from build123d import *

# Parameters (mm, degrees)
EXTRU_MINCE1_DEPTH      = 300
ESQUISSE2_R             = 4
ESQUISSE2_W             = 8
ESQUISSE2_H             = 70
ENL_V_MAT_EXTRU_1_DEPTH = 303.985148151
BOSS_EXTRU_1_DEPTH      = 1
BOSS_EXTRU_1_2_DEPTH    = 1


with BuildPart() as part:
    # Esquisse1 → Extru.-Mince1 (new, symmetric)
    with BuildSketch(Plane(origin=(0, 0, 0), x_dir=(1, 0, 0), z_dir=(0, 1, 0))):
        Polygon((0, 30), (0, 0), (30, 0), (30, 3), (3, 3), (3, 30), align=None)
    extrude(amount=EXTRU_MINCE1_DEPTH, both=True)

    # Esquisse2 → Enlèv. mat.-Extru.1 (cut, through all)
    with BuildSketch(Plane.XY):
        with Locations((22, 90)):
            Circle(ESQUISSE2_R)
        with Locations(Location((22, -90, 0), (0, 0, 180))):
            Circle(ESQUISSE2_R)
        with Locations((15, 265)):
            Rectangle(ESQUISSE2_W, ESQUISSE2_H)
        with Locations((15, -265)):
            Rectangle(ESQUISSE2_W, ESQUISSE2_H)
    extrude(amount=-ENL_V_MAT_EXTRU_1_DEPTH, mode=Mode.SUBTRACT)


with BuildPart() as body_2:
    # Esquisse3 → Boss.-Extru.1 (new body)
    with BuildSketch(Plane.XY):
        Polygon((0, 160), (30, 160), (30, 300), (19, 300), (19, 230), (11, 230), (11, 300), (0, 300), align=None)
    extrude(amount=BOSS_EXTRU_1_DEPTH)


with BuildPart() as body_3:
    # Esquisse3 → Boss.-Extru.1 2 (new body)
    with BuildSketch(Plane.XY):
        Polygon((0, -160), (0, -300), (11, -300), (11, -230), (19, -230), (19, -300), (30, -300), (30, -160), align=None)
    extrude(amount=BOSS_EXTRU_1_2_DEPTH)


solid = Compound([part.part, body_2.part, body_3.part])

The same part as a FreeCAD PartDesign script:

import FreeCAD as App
import Part
import Sketcher


def add_polygon(sketch, points):
    """Adds a closed chain of lines whose ends are joined by coincident constraints."""
    first, n = sketch.GeometryCount, len(points)
    for a, b in zip(points, points[1:] + points[:1]):
        sketch.addGeometry(Part.LineSegment(App.Vector(*a, 0), App.Vector(*b, 0)), False)
    for i in range(n):
        sketch.addConstraint(Sketcher.Constraint("Coincident", first + i, 2, first + (i + 1) % n, 1))

doc = App.newDocument("Part")
body = doc.addObject("PartDesign::Body", "Body")

# Sketch on XZ plane
sketch1 = doc.addObject("Sketcher::SketchObject", "Sketch")
body.addObject(sketch1)
sketch1.AttachmentSupport = (doc.XZ_Plane, [""])
sketch1.MapMode = "FlatFace"
add_polygon(sketch1, [(0, -30), (0, 0), (30, 0), (30, -3), (3, -3), (3, -30)])  # lines 0-5
sketch1.addConstraint(Sketcher.Constraint("Vertical", 0))
sketch1.addConstraint(Sketcher.Constraint("Horizontal", 1))
sketch1.addConstraint(Sketcher.Constraint("Vertical", 2))
sketch1.addConstraint(Sketcher.Constraint("Horizontal", 3))
sketch1.addConstraint(Sketcher.Constraint("Vertical", 4))
sketch1.addConstraint(Sketcher.Constraint("Horizontal", 5))
sketch1.addConstraint(Sketcher.Constraint("Coincident", 0, 2, -1, 1))
sketch1.addConstraint(Sketcher.Constraint("Equal", 1, 0))
sketch1.addConstraint(Sketcher.Constraint("Equal", 5, 2))
sketch1.addConstraint(Sketcher.Constraint("DistanceX", 1, 1, 1, 2, 30.0))
sketch1.addConstraint(Sketcher.Constraint("DistanceX", 3, 2, 3, 1, 27.0))
pad1 = doc.addObject("PartDesign::Pad", "Pad")
body.addObject(pad1)
pad1.Profile = sketch1
pad1.Length = 600
pad1.Midplane = True

# Sketch on XY plane
sketch2 = doc.addObject("Sketcher::SketchObject", "Sketch001")
body.addObject(sketch2)
sketch2.AttachmentSupport = (doc.XY_Plane, [""])
sketch2.MapMode = "FlatFace"
sketch2.addGeometry(Part.Circle(App.Vector(22, 90, 0), App.Vector(0, 0, 1), 4), False)  # 0
sketch2.addGeometry(Part.Circle(App.Vector(22, -90, 0), App.Vector(0, 0, 1), 4), False)  # 1
add_polygon(sketch2, [(11, 300), (11, 230), (19, 230), (19, 300)])  # lines 2-5
add_polygon(sketch2, [(11, -230), (11, -300), (19, -300), (19, -230)])  # lines 6-9
sketch2.addConstraint(Sketcher.Constraint("Vertical", 2))
sketch2.addConstraint(Sketcher.Constraint("Horizontal", 3))
sketch2.addConstraint(Sketcher.Constraint("Vertical", 4))
sketch2.addConstraint(Sketcher.Constraint("Horizontal", 5))
sketch2.addConstraint(Sketcher.Constraint("Vertical", 6))
sketch2.addConstraint(Sketcher.Constraint("Horizontal", 7))
sketch2.addConstraint(Sketcher.Constraint("Vertical", 8))
sketch2.addConstraint(Sketcher.Constraint("Horizontal", 9))
sketch2.addConstraint(Sketcher.Constraint("Equal", 0, 1))
sketch2.addConstraint(Sketcher.Constraint("Symmetric", 0, 3, 1, 3, -1))
sketch2.addConstraint(Sketcher.Constraint("Symmetric", 5, 2, 6, 2, -1))
sketch2.addConstraint(Sketcher.Constraint("Symmetric", 3, 2, 8, 2, -1))
sketch2.addConstraint(Sketcher.Constraint("Diameter", 0, 8.0))
sketch2.addConstraint(Sketcher.Constraint("DistanceX", 3, 1, 3, 2, 8.0))
sketch2.addConstraint(Sketcher.Constraint("DistanceY", 2, 2, 2, 1, 70.0))
sketch2.addConstraint(Sketcher.Constraint("DistanceX", -1, 1, 0, 3, 22.0))
sketch2.addConstraint(Sketcher.Constraint("DistanceY", -1, 1, 0, 3, 90.0))
sketch2.addConstraint(Sketcher.Constraint("DistanceX", -1, 1, 2, 2, 11.0))
sketch2.addConstraint(Sketcher.Constraint("DistanceY", -1, 1, 2, 2, 230.0))
pocket1 = doc.addObject("PartDesign::Pocket", "Pocket")
body.addObject(pocket1)
pocket1.Profile = sketch2
pocket1.Type = "ThroughAll"
body2 = doc.addObject("PartDesign::Body", "Body001")

# Sketch on XY plane
sketch3 = doc.addObject("Sketcher::SketchObject", "Sketch002")
body2.addObject(sketch3)
sketch3.AttachmentSupport = (doc.getObject("XY_Plane001"), [""])
sketch3.MapMode = "FlatFace"
add_polygon(sketch3, [(0, 160), (30, 160), (30, 300), (19, 300), (19, 230), (11, 230), (11, 300), (0, 300)])  # lines 0-7
sketch3.addConstraint(Sketcher.Constraint("Horizontal", 0))
sketch3.addConstraint(Sketcher.Constraint("Vertical", 1))
sketch3.addConstraint(Sketcher.Constraint("Horizontal", 2))
sketch3.addConstraint(Sketcher.Constraint("Vertical", 3))
sketch3.addConstraint(Sketcher.Constraint("Horizontal", 4))
sketch3.addConstraint(Sketcher.Constraint("Vertical", 5))
sketch3.addConstraint(Sketcher.Constraint("Horizontal", 6))
sketch3.addConstraint(Sketcher.Constraint("Vertical", 7))
sketch3.addConstraint(Sketcher.Constraint("PointOnObject", 6, 2, -2))
sketch3.addConstraint(Sketcher.Constraint("Horizontal", 2, 2, 5, 2))
sketch3.addConstraint(Sketcher.Constraint("Equal", 2, 6))
sketch3.addConstraint(Sketcher.Constraint("DistanceX", 0, 1, 0, 2, 30.0))
sketch3.addConstraint(Sketcher.Constraint("DistanceX", 2, 2, 2, 1, 11.0))
sketch3.addConstraint(Sketcher.Constraint("DistanceY", 1, 1, 1, 2, 140.0))
sketch3.addConstraint(Sketcher.Constraint("DistanceY", 3, 2, 3, 1, 70.0))
sketch3.addConstraint(Sketcher.Constraint("DistanceY", -1, 1, 0, 2, 160.0))
pad2 = doc.addObject("PartDesign::Pad", "Pad001")
body2.addObject(pad2)
pad2.Profile = sketch3
pad2.Length = 1
body3 = doc.addObject("PartDesign::Body", "Body002")

# Sketch on XY plane
sketch4 = doc.addObject("Sketcher::SketchObject", "Sketch003")
body3.addObject(sketch4)
sketch4.AttachmentSupport = (doc.getObject("XY_Plane002"), [""])
sketch4.MapMode = "FlatFace"
add_polygon(sketch4, [(0, -160), (0, -300), (11, -300), (11, -230), (19, -230), (19, -300), (30, -300), (30, -160)])  # lines 0-7
sketch4.addConstraint(Sketcher.Constraint("Vertical", 0))
sketch4.addConstraint(Sketcher.Constraint("Horizontal", 1))
sketch4.addConstraint(Sketcher.Constraint("Vertical", 2))
sketch4.addConstraint(Sketcher.Constraint("Horizontal", 3))
sketch4.addConstraint(Sketcher.Constraint("Vertical", 4))
sketch4.addConstraint(Sketcher.Constraint("Horizontal", 5))
sketch4.addConstraint(Sketcher.Constraint("Vertical", 6))
sketch4.addConstraint(Sketcher.Constraint("Horizontal", 7))
sketch4.addConstraint(Sketcher.Constraint("PointOnObject", 0, 2, -2))
sketch4.addConstraint(Sketcher.Constraint("Horizontal", 1, 2, 4, 2))
sketch4.addConstraint(Sketcher.Constraint("Equal", 1, 5))
sketch4.addConstraint(Sketcher.Constraint("DistanceX", 1, 1, 1, 2, 11.0))
sketch4.addConstraint(Sketcher.Constraint("DistanceX", 3, 1, 3, 2, 8.0))
sketch4.addConstraint(Sketcher.Constraint("DistanceY", 0, 2, 0, 1, 140.0))
sketch4.addConstraint(Sketcher.Constraint("DistanceY", 2, 1, 2, 2, 70.0))
sketch4.addConstraint(Sketcher.Constraint("DistanceY", 0, 2, -1, 1, 300.0))
pad3 = doc.addObject("PartDesign::Pad", "Pad002")
body3.addObject(pad3)
pad3.Profile = sketch4
pad3.Length = 1

doc.recompute()
